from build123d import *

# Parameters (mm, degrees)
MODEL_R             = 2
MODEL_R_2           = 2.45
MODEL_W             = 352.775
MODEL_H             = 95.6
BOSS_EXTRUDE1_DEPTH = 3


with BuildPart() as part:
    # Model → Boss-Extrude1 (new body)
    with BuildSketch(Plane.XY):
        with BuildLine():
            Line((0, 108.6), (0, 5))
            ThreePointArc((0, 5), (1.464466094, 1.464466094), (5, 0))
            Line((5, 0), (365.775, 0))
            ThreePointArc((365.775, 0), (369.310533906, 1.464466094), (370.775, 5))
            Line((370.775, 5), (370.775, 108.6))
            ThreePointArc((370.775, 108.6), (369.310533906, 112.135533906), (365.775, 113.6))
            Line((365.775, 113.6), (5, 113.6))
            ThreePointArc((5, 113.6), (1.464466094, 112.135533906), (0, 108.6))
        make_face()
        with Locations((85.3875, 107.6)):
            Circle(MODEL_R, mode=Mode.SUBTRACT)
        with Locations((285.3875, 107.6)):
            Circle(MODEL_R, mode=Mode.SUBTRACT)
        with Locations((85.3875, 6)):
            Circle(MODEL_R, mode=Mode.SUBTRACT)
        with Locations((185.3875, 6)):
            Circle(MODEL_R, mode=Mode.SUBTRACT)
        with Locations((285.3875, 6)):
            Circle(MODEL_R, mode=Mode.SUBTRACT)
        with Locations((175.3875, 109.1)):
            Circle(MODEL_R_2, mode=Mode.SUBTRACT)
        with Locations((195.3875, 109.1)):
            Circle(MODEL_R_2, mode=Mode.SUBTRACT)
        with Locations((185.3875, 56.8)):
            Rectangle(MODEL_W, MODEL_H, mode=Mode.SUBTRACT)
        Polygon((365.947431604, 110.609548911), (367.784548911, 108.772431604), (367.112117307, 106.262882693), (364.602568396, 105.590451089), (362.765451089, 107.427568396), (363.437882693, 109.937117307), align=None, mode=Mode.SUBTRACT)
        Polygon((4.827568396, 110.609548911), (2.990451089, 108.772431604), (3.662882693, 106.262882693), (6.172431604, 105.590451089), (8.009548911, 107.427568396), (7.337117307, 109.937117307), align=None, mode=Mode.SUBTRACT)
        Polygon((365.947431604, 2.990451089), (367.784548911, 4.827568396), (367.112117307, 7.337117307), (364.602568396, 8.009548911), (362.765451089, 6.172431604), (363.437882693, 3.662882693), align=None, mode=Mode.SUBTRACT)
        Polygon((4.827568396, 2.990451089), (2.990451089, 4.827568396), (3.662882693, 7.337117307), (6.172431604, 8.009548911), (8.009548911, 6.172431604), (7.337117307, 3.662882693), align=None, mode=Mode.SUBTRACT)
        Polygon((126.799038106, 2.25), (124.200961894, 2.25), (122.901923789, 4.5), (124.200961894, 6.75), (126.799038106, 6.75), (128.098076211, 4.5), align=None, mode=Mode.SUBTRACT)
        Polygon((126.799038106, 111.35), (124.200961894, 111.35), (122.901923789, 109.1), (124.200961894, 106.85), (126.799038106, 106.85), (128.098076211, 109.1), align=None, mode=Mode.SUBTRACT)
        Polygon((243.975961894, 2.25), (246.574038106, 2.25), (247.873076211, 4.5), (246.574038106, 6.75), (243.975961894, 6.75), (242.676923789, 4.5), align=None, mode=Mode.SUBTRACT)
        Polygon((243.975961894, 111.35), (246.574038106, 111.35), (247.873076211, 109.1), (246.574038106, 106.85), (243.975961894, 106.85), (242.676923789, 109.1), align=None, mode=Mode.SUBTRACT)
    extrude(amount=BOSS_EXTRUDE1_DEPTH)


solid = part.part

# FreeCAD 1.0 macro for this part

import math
import FreeCAD as App
import Part
import Sketcher
Q = App.Units.Quantity


def add_polygon(sketch, points):
    """Adds a closed chain of lines whose ends are joined by coincident constraints."""
    first, n = sketch.GeometryCount, len(points)
    for a, b in zip(points, points[1:] + points[:1]):
        sketch.addGeometry(Part.LineSegment(App.Vector(*a, 0), App.Vector(*b, 0)), False)
    for i in range(n):
        sketch.addConstraint(Sketcher.Constraint("Coincident", first + i, 2, first + (i + 1) % n, 1))

doc = App.newDocument("Part")
body = doc.addObject("PartDesign::Body", "Body")

sketch1 = doc.addObject("Sketcher::SketchObject", "Sketch")
body.addObject(sketch1)
sketch1.AttachmentSupport = (doc.XY_Plane, [""])
sketch1.MapMode = "FlatFace"
sketch1.addGeometry(Part.LineSegment(App.Vector(0, 108.6, 0), App.Vector(0, 5, 0)), False)
sketch1.addGeometry(Part.ArcOfCircle(Part.Circle(App.Vector(5, 5, 0), App.Vector(0, 0, 1), 5), math.radians(180), math.radians(270)), False)
sketch1.addGeometry(Part.LineSegment(App.Vector(5, 0, 0), App.Vector(365.775, 0, 0)), False)
sketch1.addGeometry(Part.ArcOfCircle(Part.Circle(App.Vector(365.775, 5, 0), App.Vector(0, 0, 1), 5), math.radians(-90), math.radians(0)), False)
sketch1.addGeometry(Part.LineSegment(App.Vector(370.775, 5, 0), App.Vector(370.775, 108.6, 0)), False)
sketch1.addGeometry(Part.ArcOfCircle(Part.Circle(App.Vector(365.775, 108.6, 0), App.Vector(0, 0, 1), 5), math.radians(0), math.radians(90)), False)
sketch1.addGeometry(Part.LineSegment(App.Vector(365.775, 113.6, 0), App.Vector(5, 113.6, 0)), False)
sketch1.addGeometry(Part.ArcOfCircle(Part.Circle(App.Vector(5, 108.6, 0), App.Vector(0, 0, 1), 5), math.radians(90), math.radians(180)), False)
add_polygon(sketch1, [(7.337117, 3.662883), (4.827568, 2.990451), (2.990451, 4.827568), (3.662883, 7.337117), (6.172432, 8.009549), (8.009549, 6.172432)])
sketch1.addGeometry(Part.Circle(App.Vector(85.3875, 6, 0), App.Vector(0, 0, 1), 2), False)
add_polygon(sketch1, [(128.098076, 4.5), (126.799038, 2.25), (124.200962, 2.25), (122.901924, 4.5), (124.200962, 6.75), (126.799038, 6.75)])
sketch1.addGeometry(Part.Circle(App.Vector(185.3875, 6, 0), App.Vector(0, 0, 1), 2), False)
add_polygon(sketch1, [(361.775, 9), (9, 9), (9, 104.6), (361.775, 104.6)])
add_polygon(sketch1, [(246.574038, 2.25), (243.975962, 2.25), (242.676924, 4.5), (243.975962, 6.75), (246.574038, 6.75), (247.873076, 4.5)])
sketch1.addGeometry(Part.Circle(App.Vector(285.3875, 6, 0), App.Vector(0, 0, 1), 2), False)
add_polygon(sketch1, [(367.784549, 4.827568), (365.947432, 2.990451), (363.437883, 3.662883), (362.765451, 6.172432), (364.602568, 8.009549), (367.112117, 7.337117)])
add_polygon(sketch1, [(2.990451, 108.772432), (4.827568, 110.609549), (7.337117, 109.937117), (8.009549, 107.427568), (6.172432, 105.590451), (3.662883, 106.262883)])
sketch1.addGeometry(Part.Circle(App.Vector(85.3875, 107.6, 0), App.Vector(0, 0, 1), 2), False)
add_polygon(sketch1, [(124.200962, 111.35), (126.799038, 111.35), (128.098076, 109.1), (126.799038, 106.85), (124.200962, 106.85), (122.901924, 109.1)])
sketch1.addGeometry(Part.Circle(App.Vector(175.3875, 109.1, 0), App.Vector(0, 0, 1), 2.45), False)
sketch1.addGeometry(Part.Circle(App.Vector(195.3875, 109.1, 0), App.Vector(0, 0, 1), 2.45), False)
add_polygon(sketch1, [(242.676924, 109.1), (243.975962, 111.35), (246.574038, 111.35), (247.873076, 109.1), (246.574038, 106.85), (243.975962, 106.85)])
sketch1.addGeometry(Part.Circle(App.Vector(285.3875, 107.6, 0), App.Vector(0, 0, 1), 2), False)
add_polygon(sketch1, [(363.437883, 109.937117), (365.947432, 110.609549), (367.784549, 108.772432), (367.112117, 106.262883), (364.602568, 105.590451), (362.765451, 107.427568)])
sketch1.addConstraint(Sketcher.Constraint("Tangent", 0, 2, 1, 1))
sketch1.addConstraint(Sketcher.Constraint("Tangent", 1, 2, 2, 1))
sketch1.addConstraint(Sketcher.Constraint("Tangent", 2, 2, 3, 1))
sketch1.addConstraint(Sketcher.Constraint("Tangent", 3, 2, 4, 1))
sketch1.addConstraint(Sketcher.Constraint("Tangent", 4, 2, 5, 1))
sketch1.addConstraint(Sketcher.Constraint("Tangent", 5, 2, 6, 1))
sketch1.addConstraint(Sketcher.Constraint("Tangent", 6, 2, 7, 1))
sketch1.addConstraint(Sketcher.Constraint("Tangent", 7, 2, 0, 1))
sketch1.addConstraint(Sketcher.Constraint("Vertical", 0))
sketch1.addConstraint(Sketcher.Constraint("Horizontal", 2))
sketch1.addConstraint(Sketcher.Constraint("Vertical", 4))
sketch1.addConstraint(Sketcher.Constraint("Horizontal", 6))
sketch1.addConstraint(Sketcher.Constraint("Horizontal", 16))
sketch1.addConstraint(Sketcher.Constraint("Horizontal", 19))
sketch1.addConstraint(Sketcher.Constraint("Horizontal", 22))
sketch1.addConstraint(Sketcher.Constraint("Vertical", 23))
sketch1.addConstraint(Sketcher.Constraint("Horizontal", 24))
sketch1.addConstraint(Sketcher.Constraint("Vertical", 25))
sketch1.addConstraint(Sketcher.Constraint("Horizontal", 26))
sketch1.addConstraint(Sketcher.Constraint("Horizontal", 29))
sketch1.addConstraint(Sketcher.Constraint("Horizontal", 46))
sketch1.addConstraint(Sketcher.Constraint("Horizontal", 49))
sketch1.addConstraint(Sketcher.Constraint("Horizontal", 55))
sketch1.addConstraint(Sketcher.Constraint("Horizontal", 58))
sketch1.addConstraint(Sketcher.Constraint("Equal", 1, 3))
sketch1.addConstraint(Sketcher.Constraint("Equal", 3, 5))
sketch1.addConstraint(Sketcher.Constraint("Equal", 5, 7))
sketch1.addConstraint(Sketcher.Constraint("Equal", 14, 21))
sketch1.addConstraint(Sketcher.Constraint("Equal", 21, 32))
sketch1.addConstraint(Sketcher.Constraint("Equal", 32, 45))
sketch1.addConstraint(Sketcher.Constraint("Equal", 52, 53))
sketch1.addConstraint(Sketcher.Constraint("Equal", 45, 60))
sketch1.addConstraint(Sketcher.Constraint("PointOnObject", 0, 2, -2))
sketch1.addConstraint(Sketcher.Constraint("PointOnObject", 1, 2, -1))
sketch1.addConstraint(Sketcher.Constraint("Parallel", 8, 11))
sketch1.addConstraint(Sketcher.Constraint("Parallel", 9, 12))
sketch1.addConstraint(Sketcher.Constraint("Parallel", 10, 13))
sketch1.addConstraint(Sketcher.Constraint("Parallel", 15, 18))
sketch1.addConstraint(Sketcher.Constraint("Parallel", 17, 20))
sketch1.addConstraint(Sketcher.Constraint("Parallel", 20, 27))
sketch1.addConstraint(Sketcher.Constraint("Parallel", 18, 28))
sketch1.addConstraint(Sketcher.Constraint("Parallel", 27, 30))
sketch1.addConstraint(Sketcher.Constraint("Parallel", 28, 31))
sketch1.addConstraint(Sketcher.Constraint("Perpendicular", 12, 33))
sketch1.addConstraint(Sketcher.Constraint("Perpendicular", 13, 34))
sketch1.addConstraint(Sketcher.Constraint("Perpendicular", 11, 35))
sketch1.addConstraint(Sketcher.Constraint("Parallel", 33, 36))
sketch1.addConstraint(Sketcher.Constraint("Parallel", 34, 37))
sketch1.addConstraint(Sketcher.Constraint("Parallel", 35, 38))
sketch1.addConstraint(Sketcher.Constraint("Parallel", 36, 39))
sketch1.addConstraint(Sketcher.Constraint("Parallel", 37, 40))
sketch1.addConstraint(Sketcher.Constraint("Parallel", 38, 41))
sketch1.addConstraint(Sketcher.Constraint("Parallel", 39, 42))
sketch1.addConstraint(Sketcher.Constraint("Parallel", 40, 43))
sketch1.addConstraint(Sketcher.Constraint("Parallel", 41, 44))
sketch1.addConstraint(Sketcher.Constraint("Parallel", 30, 47))
sketch1.addConstraint(Sketcher.Constraint("Parallel", 31, 48))
sketch1.addConstraint(Sketcher.Constraint("Parallel", 47, 50))
sketch1.addConstraint(Sketcher.Constraint("Parallel", 48, 51))
sketch1.addConstraint(Sketcher.Constraint("Parallel", 51, 54))
sketch1.addConstraint(Sketcher.Constraint("Parallel", 50, 56))
sketch1.addConstraint(Sketcher.Constraint("Parallel", 54, 57))
sketch1.addConstraint(Sketcher.Constraint("Parallel", 56, 59))
sketch1.addConstraint(Sketcher.Constraint("Perpendicular", 44, 61))
sketch1.addConstraint(Sketcher.Constraint("Perpendicular", 42, 62))
sketch1.addConstraint(Sketcher.Constraint("Perpendicular", 43, 63))
sketch1.addConstraint(Sketcher.Constraint("Parallel", 61, 64))
sketch1.addConstraint(Sketcher.Constraint("Parallel", 62, 65))
sketch1.addConstraint(Sketcher.Constraint("Parallel", 63, 66))
sketch1.addConstraint(Sketcher.Constraint("Horizontal", 14, 3, 21, 3))
sketch1.addConstraint(Sketcher.Constraint("Horizontal", 21, 3, 32, 3))
sketch1.addConstraint(Sketcher.Constraint("Horizontal", 52, 3, 53, 3))
sketch1.addConstraint(Sketcher.Constraint("Horizontal", 45, 3, 60, 3))
sketch1.addConstraint(Sketcher.Constraint("Horizontal", 17, 2, 20, 2))
sketch1.addConstraint(Sketcher.Constraint("Horizontal", 16, 2, 26, 2))
sketch1.addConstraint(Sketcher.Constraint("Horizontal", 20, 2, 27, 2))
sketch1.addConstraint(Sketcher.Constraint("Horizontal", 19, 2, 28, 2))
sketch1.addConstraint(Sketcher.Constraint("Horizontal", 27, 2, 30, 2))
sketch1.addConstraint(Sketcher.Constraint("Horizontal", 8, 2, 33, 2))
sketch1.addConstraint(Sketcher.Constraint("Horizontal", 13, 2, 34, 2))
sketch1.addConstraint(Sketcher.Constraint("Horizontal", 12, 2, 35, 2))
sketch1.addConstraint(Sketcher.Constraint("Horizontal", 11, 2, 36, 2))
sketch1.addConstraint(Sketcher.Constraint("Horizontal", 10, 2, 37, 2))
sketch1.addConstraint(Sketcher.Constraint("Horizontal", 53, 3, 47, 2))
sketch1.addConstraint(Sketcher.Constraint("Horizontal", 47, 2, 50, 2))
sketch1.addConstraint(Sketcher.Constraint("Horizontal", 51, 2, 54, 2))
sketch1.addConstraint(Sketcher.Constraint("Horizontal", 50, 2, 56, 2))
sketch1.addConstraint(Sketcher.Constraint("Horizontal", 49, 2, 57, 2))
sketch1.addConstraint(Sketcher.Constraint("Horizontal", 56, 2, 59, 2))
sketch1.addConstraint(Sketcher.Constraint("Horizontal", 39, 2, 61, 2))
sketch1.addConstraint(Sketcher.Constraint("Horizontal", 44, 2, 62, 2))
sketch1.addConstraint(Sketcher.Constraint("Horizontal", 43, 2, 63, 2))
sketch1.addConstraint(Sketcher.Constraint("Horizontal", 42, 2, 64, 2))
sketch1.addConstraint(Sketcher.Constraint("Horizontal", 41, 2, 65, 2))
sketch1.addConstraint(Sketcher.Constraint("Vertical", 14, 3, 45, 3))
sketch1.addConstraint(Sketcher.Constraint("Vertical", 32, 3, 60, 3))
sketch1.addConstraint(Sketcher.Constraint("Vertical", 16, 2, 18, 2))
sketch1.addConstraint(Sketcher.Constraint("Vertical", 15, 2, 19, 2))
sketch1.addConstraint(Sketcher.Constraint("Vertical", 8, 2, 39, 2))
sketch1.addConstraint(Sketcher.Constraint("Vertical", 13, 2, 40, 2))
sketch1.addConstraint(Sketcher.Constraint("Vertical", 12, 2, 41, 2))
sketch1.addConstraint(Sketcher.Constraint("Vertical", 11, 2, 42, 2))
sketch1.addConstraint(Sketcher.Constraint("Vertical", 10, 2, 43, 2))
sketch1.addConstraint(Sketcher.Constraint("Vertical", 19, 2, 46, 2))
sketch1.addConstraint(Sketcher.Constraint("Vertical", 20, 2, 47, 2))
sketch1.addConstraint(Sketcher.Constraint("Vertical", 46, 2, 48, 2))
sketch1.addConstraint(Sketcher.Constraint("Vertical", 18, 2, 49, 2))
sketch1.addConstraint(Sketcher.Constraint("Vertical", 28, 2, 54, 2))
sketch1.addConstraint(Sketcher.Constraint("Vertical", 31, 2, 55, 2))
sketch1.addConstraint(Sketcher.Constraint("Vertical", 33, 2, 61, 2))
sketch1.addConstraint(Sketcher.Constraint("Vertical", 38, 2, 62, 2))
sketch1.addConstraint(Sketcher.Constraint("Vertical", 37, 2, 63, 2))
sketch1.addConstraint(Sketcher.Constraint("Equal", 19, 26))
sketch1.addConstraint(Sketcher.Constraint("Equal", 8, 9))
sketch1.addConstraint(Sketcher.Constraint("Equal", 9, 10))
sketch1.addConstraint(Sketcher.Constraint("Equal", 10, 11))
sketch1.addConstraint(Sketcher.Constraint("Equal", 13, 15))
sketch1.addConstraint(Sketcher.Constraint("Diameter", 14, 4.0))
sketch1.addConstraint(Sketcher.Constraint("Radius", 1, 5.0))
sketch1.addConstraint(Sketcher.Constraint("Diameter", 52, 4.9))
sketch1.addConstraint(Sketcher.Constraint("Angle", 8, Q("-165 deg")))
sketch1.addConstraint(Sketcher.Constraint("Angle", 15, Q("-120 deg")))
sketch1.addConstraint(Sketcher.Constraint("DistanceY", 0, 2, 0, 1, 103.6))
sketch1.addConstraint(Sketcher.Constraint("DistanceY", 23, 1, 23, 2, 95.6))
sketch1.addConstraint(Sketcher.Constraint("DistanceY", -1, 1, 14, 3, 6.0))
sketch1.addConstraint(Sketcher.Constraint("DistanceX", -1, 1, 22, 2, 9.0))
sketch1.addConstraint(Sketcher.Constraint("DistanceY", -1, 1, 22, 2, 9.0))
sketch1.addConstraint(Sketcher.Constraint("DistanceY", -1, 1, 45, 3, 107.6))
sketch1.addConstraint(Sketcher.Constraint("DistanceY", -1, 1, 52, 3, 109.1))
sketch1.addConstraint(Sketcher.Constraint("DistanceY", -1, 1, 17, 2, 4.5))
sketch1.addConstraint(Sketcher.Constraint("DistanceX", 2, 1, 2, 2, 360.775))
sketch1.addConstraint(Sketcher.Constraint("DistanceX", 22, 2, 22, 1, 352.775))
sketch1.addConstraint(Sketcher.Constraint("DistanceY", -1, 1, 15, 2, 2.25))
sketch1.addConstraint(Sketcher.Constraint("DistanceX", -1, 1, 14, 3, 85.3875))
sketch1.addConstraint(Sketcher.Constraint("DistanceX", -1, 1, 21, 3, 185.3875))
sketch1.addConstraint(Sketcher.Constraint("DistanceX", -1, 1, 32, 3, 285.3875))
sketch1.addConstraint(Sketcher.Constraint("DistanceX", -1, 1, 52, 3, 175.3875))
sketch1.addConstraint(Sketcher.Constraint("DistanceX", -1, 1, 53, 3, 195.3875))
sketch1.addConstraint(Sketcher.Constraint("DistanceX", 16, 2, 16, 1, 2.598076))
sketch1.addConstraint(Sketcher.Constraint("DistanceX", -1, 1, 8, 2, 4.827568))
sketch1.addConstraint(Sketcher.Constraint("DistanceY", -1, 1, 8, 2, 2.990451))
sketch1.addConstraint(Sketcher.Constraint("DistanceX", -1, 1, 15, 2, 126.799038))
sketch1.addConstraint(Sketcher.Constraint("DistanceX", -1, 1, 26, 2, 243.975962))
sketch1.addConstraint(Sketcher.Constraint("DistanceX", -1, 1, 33, 2, 365.947432))
sketch1.addConstraint(Sketcher.Constraint("DistanceY", -1, 1, 39, 2, 110.609549))
pad1 = doc.addObject("PartDesign::Pad", "Pad")
body.addObject(pad1)
pad1.Profile = sketch1
pad1.Length = 3

doc.recompute()
